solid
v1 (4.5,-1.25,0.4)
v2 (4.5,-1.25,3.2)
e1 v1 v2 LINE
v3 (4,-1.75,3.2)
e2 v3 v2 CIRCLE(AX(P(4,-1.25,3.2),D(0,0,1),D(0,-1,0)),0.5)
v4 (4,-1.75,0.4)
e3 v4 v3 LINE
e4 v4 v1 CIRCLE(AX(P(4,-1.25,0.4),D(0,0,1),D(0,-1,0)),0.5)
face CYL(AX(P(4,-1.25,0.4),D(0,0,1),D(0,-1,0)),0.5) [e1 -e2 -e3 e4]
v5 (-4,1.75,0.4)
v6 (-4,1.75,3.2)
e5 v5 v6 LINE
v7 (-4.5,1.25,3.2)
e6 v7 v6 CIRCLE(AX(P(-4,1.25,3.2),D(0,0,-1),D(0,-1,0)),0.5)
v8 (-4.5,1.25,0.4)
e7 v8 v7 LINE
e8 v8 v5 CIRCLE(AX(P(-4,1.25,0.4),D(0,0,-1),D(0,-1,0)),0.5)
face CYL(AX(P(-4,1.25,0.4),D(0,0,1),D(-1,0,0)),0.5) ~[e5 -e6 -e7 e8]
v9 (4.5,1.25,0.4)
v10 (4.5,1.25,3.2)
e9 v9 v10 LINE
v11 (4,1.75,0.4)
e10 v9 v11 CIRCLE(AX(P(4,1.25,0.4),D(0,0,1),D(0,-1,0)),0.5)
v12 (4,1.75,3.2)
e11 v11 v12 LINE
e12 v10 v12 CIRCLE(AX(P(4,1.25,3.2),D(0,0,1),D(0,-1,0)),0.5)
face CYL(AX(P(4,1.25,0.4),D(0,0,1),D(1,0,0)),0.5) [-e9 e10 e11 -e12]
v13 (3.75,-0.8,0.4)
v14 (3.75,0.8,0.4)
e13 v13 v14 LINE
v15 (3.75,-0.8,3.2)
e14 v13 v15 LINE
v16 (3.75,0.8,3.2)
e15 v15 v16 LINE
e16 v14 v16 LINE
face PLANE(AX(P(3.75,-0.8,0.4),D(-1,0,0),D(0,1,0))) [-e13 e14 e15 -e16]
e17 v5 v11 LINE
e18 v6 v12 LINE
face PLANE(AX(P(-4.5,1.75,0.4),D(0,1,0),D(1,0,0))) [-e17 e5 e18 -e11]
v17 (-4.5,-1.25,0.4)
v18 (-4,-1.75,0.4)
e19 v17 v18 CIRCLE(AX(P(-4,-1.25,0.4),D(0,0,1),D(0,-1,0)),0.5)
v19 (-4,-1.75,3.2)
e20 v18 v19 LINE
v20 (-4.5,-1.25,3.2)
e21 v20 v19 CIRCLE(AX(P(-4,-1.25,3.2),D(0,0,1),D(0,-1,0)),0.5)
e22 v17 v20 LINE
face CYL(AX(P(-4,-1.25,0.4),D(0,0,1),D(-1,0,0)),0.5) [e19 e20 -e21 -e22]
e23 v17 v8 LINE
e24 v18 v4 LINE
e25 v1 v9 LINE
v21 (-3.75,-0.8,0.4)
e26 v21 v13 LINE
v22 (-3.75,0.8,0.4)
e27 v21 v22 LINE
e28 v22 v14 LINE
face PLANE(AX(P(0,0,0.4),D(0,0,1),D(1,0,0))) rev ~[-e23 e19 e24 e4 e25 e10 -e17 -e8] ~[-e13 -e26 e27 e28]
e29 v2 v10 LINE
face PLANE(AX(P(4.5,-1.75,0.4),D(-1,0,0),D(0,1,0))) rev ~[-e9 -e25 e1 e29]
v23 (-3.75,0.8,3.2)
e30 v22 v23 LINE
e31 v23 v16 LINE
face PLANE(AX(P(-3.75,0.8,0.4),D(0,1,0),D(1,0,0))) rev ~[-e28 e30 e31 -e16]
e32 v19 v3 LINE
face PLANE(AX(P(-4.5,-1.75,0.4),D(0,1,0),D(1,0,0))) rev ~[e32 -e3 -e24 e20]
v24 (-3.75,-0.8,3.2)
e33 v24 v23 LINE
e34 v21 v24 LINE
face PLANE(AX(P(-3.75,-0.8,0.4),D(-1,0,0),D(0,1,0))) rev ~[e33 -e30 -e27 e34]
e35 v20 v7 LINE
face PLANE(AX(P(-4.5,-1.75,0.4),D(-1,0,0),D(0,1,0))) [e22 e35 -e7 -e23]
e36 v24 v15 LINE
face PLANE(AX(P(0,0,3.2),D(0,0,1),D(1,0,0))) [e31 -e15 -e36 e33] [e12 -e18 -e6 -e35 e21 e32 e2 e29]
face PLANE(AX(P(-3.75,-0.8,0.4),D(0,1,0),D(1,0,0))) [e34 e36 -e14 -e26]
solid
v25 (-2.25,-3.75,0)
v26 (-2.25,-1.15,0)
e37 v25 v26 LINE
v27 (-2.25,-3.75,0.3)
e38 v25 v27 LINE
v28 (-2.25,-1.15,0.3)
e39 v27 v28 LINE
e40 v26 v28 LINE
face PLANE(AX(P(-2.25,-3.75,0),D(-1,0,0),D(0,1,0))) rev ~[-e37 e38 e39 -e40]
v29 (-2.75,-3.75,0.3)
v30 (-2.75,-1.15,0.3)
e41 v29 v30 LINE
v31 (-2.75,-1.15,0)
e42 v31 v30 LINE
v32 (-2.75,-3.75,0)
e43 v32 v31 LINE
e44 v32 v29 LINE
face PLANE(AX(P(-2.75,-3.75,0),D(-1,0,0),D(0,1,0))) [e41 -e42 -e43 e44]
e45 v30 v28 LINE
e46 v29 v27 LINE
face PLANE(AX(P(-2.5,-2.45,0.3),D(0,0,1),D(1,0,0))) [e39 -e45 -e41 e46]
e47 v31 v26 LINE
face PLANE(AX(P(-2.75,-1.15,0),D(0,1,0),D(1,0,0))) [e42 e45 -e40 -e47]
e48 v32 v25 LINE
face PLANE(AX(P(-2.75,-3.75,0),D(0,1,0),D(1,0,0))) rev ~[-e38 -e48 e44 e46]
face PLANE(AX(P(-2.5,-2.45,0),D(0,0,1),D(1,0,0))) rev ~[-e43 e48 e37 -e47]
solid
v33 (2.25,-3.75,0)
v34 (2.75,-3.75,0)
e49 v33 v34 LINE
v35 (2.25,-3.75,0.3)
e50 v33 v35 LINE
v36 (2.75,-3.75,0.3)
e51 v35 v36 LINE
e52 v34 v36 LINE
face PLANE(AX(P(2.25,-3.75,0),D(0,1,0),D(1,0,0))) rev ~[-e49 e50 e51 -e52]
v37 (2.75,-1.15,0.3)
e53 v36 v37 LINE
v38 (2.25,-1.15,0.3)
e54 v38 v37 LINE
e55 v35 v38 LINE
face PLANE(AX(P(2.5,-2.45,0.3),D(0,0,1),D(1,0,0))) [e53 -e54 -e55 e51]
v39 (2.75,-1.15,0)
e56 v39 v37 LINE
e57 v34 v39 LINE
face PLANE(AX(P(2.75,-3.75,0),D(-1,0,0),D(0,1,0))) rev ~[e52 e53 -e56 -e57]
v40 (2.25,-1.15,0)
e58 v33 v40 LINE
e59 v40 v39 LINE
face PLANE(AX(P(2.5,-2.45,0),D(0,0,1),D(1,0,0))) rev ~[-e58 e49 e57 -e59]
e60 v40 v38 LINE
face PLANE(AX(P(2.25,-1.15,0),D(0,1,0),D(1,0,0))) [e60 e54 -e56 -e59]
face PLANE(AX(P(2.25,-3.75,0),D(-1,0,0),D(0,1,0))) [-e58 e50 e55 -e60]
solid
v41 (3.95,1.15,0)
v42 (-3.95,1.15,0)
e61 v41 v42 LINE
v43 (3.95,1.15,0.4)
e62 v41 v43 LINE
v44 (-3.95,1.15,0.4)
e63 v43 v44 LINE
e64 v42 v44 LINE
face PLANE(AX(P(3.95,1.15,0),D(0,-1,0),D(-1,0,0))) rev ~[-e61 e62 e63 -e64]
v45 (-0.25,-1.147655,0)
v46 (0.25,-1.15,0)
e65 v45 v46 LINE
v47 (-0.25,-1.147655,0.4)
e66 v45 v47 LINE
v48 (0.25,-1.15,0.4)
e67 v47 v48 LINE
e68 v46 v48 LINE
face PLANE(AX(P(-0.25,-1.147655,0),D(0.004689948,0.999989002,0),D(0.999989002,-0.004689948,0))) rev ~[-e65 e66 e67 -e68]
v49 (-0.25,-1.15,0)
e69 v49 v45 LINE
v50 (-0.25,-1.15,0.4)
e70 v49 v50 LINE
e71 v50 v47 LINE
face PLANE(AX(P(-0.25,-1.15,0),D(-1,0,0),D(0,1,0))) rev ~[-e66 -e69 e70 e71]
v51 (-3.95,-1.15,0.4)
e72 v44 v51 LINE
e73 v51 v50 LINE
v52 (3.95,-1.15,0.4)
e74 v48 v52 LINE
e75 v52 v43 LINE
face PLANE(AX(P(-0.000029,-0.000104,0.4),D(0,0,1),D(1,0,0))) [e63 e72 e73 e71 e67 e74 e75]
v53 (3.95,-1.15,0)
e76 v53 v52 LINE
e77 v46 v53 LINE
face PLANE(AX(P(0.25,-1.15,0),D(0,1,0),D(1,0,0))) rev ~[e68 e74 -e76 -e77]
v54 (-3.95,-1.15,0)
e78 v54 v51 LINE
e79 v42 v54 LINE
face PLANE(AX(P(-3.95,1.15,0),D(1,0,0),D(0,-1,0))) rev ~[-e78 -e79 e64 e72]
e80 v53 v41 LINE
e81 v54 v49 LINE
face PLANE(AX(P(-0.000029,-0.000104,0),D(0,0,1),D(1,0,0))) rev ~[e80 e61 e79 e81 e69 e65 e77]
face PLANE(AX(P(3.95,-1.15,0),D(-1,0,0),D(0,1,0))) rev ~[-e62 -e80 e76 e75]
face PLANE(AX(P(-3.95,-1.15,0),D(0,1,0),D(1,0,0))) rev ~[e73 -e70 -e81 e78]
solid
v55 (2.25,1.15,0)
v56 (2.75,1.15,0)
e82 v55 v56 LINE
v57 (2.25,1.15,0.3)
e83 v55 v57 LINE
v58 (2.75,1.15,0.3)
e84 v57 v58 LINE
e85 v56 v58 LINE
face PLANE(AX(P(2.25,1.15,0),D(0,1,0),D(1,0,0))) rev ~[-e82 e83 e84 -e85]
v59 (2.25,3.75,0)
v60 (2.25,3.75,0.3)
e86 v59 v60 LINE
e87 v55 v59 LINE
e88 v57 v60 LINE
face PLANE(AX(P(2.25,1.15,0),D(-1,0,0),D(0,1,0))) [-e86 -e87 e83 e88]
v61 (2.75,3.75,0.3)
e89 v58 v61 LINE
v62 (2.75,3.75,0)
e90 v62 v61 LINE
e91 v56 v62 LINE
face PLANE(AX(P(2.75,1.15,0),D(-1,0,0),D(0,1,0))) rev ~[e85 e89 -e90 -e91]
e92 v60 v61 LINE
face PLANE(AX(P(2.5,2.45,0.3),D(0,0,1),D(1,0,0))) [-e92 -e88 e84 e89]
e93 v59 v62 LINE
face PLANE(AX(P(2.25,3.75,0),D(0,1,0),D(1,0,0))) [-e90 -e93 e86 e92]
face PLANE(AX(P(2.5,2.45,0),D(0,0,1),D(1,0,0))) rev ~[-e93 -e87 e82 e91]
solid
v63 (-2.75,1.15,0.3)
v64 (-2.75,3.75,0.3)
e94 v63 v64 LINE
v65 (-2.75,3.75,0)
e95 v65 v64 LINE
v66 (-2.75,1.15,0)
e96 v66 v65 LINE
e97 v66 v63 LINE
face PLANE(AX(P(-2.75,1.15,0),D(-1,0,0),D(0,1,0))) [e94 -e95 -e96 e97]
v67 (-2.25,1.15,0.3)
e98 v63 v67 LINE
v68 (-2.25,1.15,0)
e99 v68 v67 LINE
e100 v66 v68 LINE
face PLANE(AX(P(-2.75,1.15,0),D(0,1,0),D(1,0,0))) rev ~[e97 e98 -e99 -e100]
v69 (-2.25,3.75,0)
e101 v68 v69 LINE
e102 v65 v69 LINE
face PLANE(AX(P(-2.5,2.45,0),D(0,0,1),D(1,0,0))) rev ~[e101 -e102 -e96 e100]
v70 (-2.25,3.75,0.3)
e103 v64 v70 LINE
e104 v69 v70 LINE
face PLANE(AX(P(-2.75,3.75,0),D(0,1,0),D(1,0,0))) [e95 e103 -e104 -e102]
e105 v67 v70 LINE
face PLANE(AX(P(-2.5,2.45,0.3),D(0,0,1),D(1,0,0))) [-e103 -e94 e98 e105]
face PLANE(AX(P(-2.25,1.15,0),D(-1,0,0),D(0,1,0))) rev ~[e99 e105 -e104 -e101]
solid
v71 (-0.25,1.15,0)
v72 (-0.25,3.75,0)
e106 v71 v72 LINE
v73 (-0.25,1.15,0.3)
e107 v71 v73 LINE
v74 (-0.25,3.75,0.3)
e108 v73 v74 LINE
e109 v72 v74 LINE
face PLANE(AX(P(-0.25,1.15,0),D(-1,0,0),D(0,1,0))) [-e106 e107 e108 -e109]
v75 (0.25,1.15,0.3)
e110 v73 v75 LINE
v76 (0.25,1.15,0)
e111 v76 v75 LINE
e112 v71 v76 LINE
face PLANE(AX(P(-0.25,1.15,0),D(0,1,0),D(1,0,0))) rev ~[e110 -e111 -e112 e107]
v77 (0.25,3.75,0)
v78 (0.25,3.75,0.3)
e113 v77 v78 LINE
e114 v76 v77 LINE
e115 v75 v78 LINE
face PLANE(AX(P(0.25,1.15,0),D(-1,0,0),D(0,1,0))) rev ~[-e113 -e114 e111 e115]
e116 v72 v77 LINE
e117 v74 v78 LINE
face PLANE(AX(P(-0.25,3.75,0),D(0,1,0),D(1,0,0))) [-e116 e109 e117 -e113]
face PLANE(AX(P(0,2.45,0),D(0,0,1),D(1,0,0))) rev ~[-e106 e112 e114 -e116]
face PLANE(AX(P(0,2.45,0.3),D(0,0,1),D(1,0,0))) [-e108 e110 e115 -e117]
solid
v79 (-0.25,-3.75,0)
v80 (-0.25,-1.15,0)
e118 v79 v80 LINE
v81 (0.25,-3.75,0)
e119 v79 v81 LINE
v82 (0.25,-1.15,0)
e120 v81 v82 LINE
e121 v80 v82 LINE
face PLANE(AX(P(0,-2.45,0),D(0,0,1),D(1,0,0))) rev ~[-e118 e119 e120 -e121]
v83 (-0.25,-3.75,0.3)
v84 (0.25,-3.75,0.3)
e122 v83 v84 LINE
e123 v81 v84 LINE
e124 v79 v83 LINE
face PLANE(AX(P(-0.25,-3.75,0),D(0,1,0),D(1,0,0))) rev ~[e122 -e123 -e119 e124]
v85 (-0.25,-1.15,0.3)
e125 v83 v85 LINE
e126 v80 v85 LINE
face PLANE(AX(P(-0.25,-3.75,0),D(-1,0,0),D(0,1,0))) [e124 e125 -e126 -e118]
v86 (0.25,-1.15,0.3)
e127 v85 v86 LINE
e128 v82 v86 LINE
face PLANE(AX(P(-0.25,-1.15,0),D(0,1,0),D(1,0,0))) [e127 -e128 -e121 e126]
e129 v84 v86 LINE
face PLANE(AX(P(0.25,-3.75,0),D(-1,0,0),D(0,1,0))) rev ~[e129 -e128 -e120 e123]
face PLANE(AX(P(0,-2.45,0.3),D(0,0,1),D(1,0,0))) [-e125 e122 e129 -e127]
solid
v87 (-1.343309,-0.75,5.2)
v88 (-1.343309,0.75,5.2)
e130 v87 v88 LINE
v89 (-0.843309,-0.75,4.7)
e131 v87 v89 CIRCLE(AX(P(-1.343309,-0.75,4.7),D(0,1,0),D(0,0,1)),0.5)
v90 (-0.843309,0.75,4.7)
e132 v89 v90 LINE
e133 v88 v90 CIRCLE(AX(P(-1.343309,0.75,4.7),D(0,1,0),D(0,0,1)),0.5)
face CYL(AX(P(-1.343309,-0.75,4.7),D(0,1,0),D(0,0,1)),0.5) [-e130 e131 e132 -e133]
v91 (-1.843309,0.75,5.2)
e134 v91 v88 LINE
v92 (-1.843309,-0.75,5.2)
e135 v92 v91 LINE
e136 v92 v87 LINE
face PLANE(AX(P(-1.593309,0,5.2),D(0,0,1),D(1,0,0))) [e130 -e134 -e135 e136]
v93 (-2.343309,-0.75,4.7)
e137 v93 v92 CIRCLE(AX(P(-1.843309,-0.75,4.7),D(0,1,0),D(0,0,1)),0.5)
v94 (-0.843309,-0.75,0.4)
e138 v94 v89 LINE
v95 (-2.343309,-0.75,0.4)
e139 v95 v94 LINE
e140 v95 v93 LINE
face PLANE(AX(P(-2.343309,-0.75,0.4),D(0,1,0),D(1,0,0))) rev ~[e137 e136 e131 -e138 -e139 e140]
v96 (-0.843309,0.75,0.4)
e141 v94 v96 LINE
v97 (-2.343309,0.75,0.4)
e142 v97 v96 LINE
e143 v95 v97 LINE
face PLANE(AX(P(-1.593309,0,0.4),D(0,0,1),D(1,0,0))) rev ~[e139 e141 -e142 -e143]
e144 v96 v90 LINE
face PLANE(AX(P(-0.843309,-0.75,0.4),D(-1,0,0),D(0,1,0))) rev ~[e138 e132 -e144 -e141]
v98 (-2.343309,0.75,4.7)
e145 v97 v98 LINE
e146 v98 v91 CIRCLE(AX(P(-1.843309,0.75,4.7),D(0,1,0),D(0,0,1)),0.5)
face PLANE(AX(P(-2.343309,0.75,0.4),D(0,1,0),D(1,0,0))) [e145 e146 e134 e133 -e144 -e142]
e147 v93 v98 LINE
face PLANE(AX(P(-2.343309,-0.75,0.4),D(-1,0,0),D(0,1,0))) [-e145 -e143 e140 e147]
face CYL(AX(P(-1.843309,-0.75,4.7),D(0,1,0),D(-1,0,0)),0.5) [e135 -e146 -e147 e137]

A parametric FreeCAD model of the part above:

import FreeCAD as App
import Part
import Sketcher

V = App.Vector


def edges_at(feature, points):
    """Names of the edges that pass closest to the given points."""
    edges = feature.Shape.Edges
    near = lambda p: min(range(len(edges)), key=lambda i: edges[i].distToShape(Part.Vertex(*p))[0])
    return sorted({f"Edge{near(p) + 1}" for p in points})


def add_polygon(sketch, points):
    """Adds a closed chain of lines whose ends are joined by coincident constraints."""
    first, n = sketch.GeometryCount, len(points)
    for a, b in zip(points, points[1:] + points[:1]):
        sketch.addGeometry(Part.LineSegment(App.Vector(*a, 0), App.Vector(*b, 0)), False)
    for i in range(n):
        sketch.addConstraint(Sketcher.Constraint("Coincident", first + i, 2, first + (i + 1) % n, 1))

doc = App.newDocument("Part")
body = doc.addObject("PartDesign::Body", "Body")

sketch1 = doc.addObject("Sketcher::SketchObject", "Sketch")
body.addObject(sketch1)
sketch1.AttachmentSupport = (doc.XY_Plane, [""])
sketch1.MapMode = "FlatFace"
sketch1.AttachmentOffset = App.Placement(V(0, 0, 0.4), App.Rotation())
add_polygon(sketch1, [(-4.5, 1.8), (-4.5, -1.8), (4.5, -1.8), (4.5, 1.8)])
add_polygon(sketch1, [(3.8, -0.8), (-3.8, -0.8), (-3.8, 0.8), (3.8, 0.8)])
sketch1.addConstraint([
    Sketcher.Constraint("Vertical", 0),
    Sketcher.Constraint("Horizontal", 1),
    Sketcher.Constraint("Vertical", 2),
    Sketcher.Constraint("Horizontal", 3),
    Sketcher.Constraint("Horizontal", 4),
    Sketcher.Constraint("Vertical", 5),
    Sketcher.Constraint("Horizontal", 6),
    Sketcher.Constraint("Vertical", 7),
    Sketcher.Constraint("Symmetric", 0, 2, 2, 2, -1, 1),
    Sketcher.Constraint("Symmetric", 4, 2, 6, 2, -1, 1),
    Sketcher.Constraint("DistanceX", 1, 1, 1, 2, 9.0),
    Sketcher.Constraint("DistanceX", 4, 2, 4, 1, 7.5),
    Sketcher.Constraint("DistanceY", 0, 2, 0, 1, 3.5),
    Sketcher.Constraint("DistanceY", 5, 1, 5, 2, 1.6),
])
pad1 = doc.addObject("PartDesign::Pad", "Pad")
body.addObject(pad1)
pad1.Profile = sketch1
pad1.Length = 2.8
doc.recompute()

fillet = doc.addObject("PartDesign::Fillet", "Fillet")
body.addObject(fillet)
fillet.Base = (pad1, edges_at(pad1, [(-4.5, -1.75, 1.8)]))
fillet.Radius = 0.5
doc.recompute()

fillet2 = doc.addObject("PartDesign::Fillet", "Fillet001")
body.addObject(fillet2)
fillet2.Base = (fillet, edges_at(fillet, [(-4.5, 1.75, 1.8)]))
fillet2.Radius = 0.5
doc.recompute()

fillet3 = doc.addObject("PartDesign::Fillet", "Fillet002")
body.addObject(fillet3)
fillet3.Base = (fillet2, edges_at(fillet2, [(4.5, -1.75, 1.8)]))
fillet3.Radius = 0.5
doc.recompute()

fillet4 = doc.addObject("PartDesign::Fillet", "Fillet003")
body.addObject(fillet4)
fillet4.Base = (fillet3, edges_at(fillet3, [(4.5, 1.75, 1.8)]))
fillet4.Radius = 0.5
body2 = doc.addObject("PartDesign::Body", "Body001")

sketch2 = doc.addObject("Sketcher::SketchObject", "Sketch001")
body2.addObject(sketch2)
sketch2.AttachmentSupport = (doc.getObject("XY_Plane001"), [""])
sketch2.MapMode = "FlatFace"
add_polygon(sketch2, [(3.95, -1.15), (3.95, 1.15), (-3.95, 1.15), (-3.95, -1.15), (-0.25, -1.15), (-0.25, -1.1477), (0.25, -1.15)])
sketch2.addConstraint([
    Sketcher.Constraint("Vertical", 0),
    Sketcher.Constraint("Horizontal", 1),
    Sketcher.Constraint("Vertical", 2),
    Sketcher.Constraint("Horizontal", 3),
    Sketcher.Constraint("Vertical", 4),
    Sketcher.Constraint("Horizontal", 6),
    Sketcher.Constraint("Symmetric", 0, 2, 2, 2, -1, 1),
    Sketcher.Constraint("Symmetric", 3, 2, 5, 2, -2),
    Sketcher.Constraint("DistanceX", 1, 2, 1, 1, 7.9),
    Sketcher.Constraint("DistanceX", 3, 1, 3, 2, 3.7),
    Sketcher.Constraint("DistanceY", 0, 1, 0, 2, 2.3),
    Sketcher.Constraint("DistanceY", 4, 1, 4, 2, 0.002345),
])
pad2 = doc.addObject("PartDesign::Pad", "Pad001")
body2.addObject(pad2)
pad2.Profile = sketch2
pad2.Length = 0.4
body3 = doc.addObject("PartDesign::Body", "Body002")

sketch3 = doc.addObject("Sketcher::SketchObject", "Sketch002")
body3.addObject(sketch3)
sketch3.AttachmentSupport = (doc.getObject("XY_Plane002"), [""])
sketch3.MapMode = "FlatFace"
sketch3.AttachmentOffset = App.Placement(V(0, 0, 0.4), App.Rotation())
add_polygon(sketch3, [(-2.3, 0.8), (-2.3, -0.8), (-0.8, -0.8), (-0.8, 0.8)])
sketch3.addConstraint([
    Sketcher.Constraint("Vertical", 0),
    Sketcher.Constraint("Horizontal", 1),
    Sketcher.Constraint("Vertical", 2),
    Sketcher.Constraint("Horizontal", 3),
    Sketcher.Constraint("Equal", 3, 0),
    Sketcher.Constraint("DistanceX", 1, 1, 1, 2, 1.5),
    Sketcher.Constraint("DistanceY", 0, 2, -1, 1, 0.75),
    Sketcher.Constraint("DistanceX", 0, 2, -1, 1, 2.343309),
])
pad3 = doc.addObject("PartDesign::Pad", "Pad002")
body3.addObject(pad3)
pad3.Profile = sketch3
pad3.Length = 4.8
doc.recompute()

fillet5 = doc.addObject("PartDesign::Fillet", "Fillet004")
body3.addObject(fillet5)
fillet5.Base = (pad3, edges_at(pad3, [(-2.343, 0, 5.2)]))
fillet5.Radius = 0.5
doc.recompute()

fillet6 = doc.addObject("PartDesign::Fillet", "Fillet005")
body3.addObject(fillet6)
fillet6.Base = (fillet5, edges_at(fillet5, [(-0.843, 0, 5.2)]))
fillet6.Radius = 0.5
body4 = doc.addObject("PartDesign::Body", "Body003")
body4.AllowCompound = True

sketch4 = doc.addObject("Sketcher::SketchObject", "Sketch003")
body4.addObject(sketch4)
sketch4.AttachmentSupport = (doc.getObject("XY_Plane003"), [""])
sketch4.MapMode = "FlatFace"
add_polygon(sketch4, [(-2.8, 3.8), (-2.8, 1.1), (-2.2, 1.1), (-2.2, 3.8)])
add_polygon(sketch4, [(-0.2, 3.8), (-0.2, 1.1), (0.2, 1.1), (0.2, 3.8)])
add_polygon(sketch4, [(2.2, 3.8), (2.2, 1.1), (2.8, 1.1), (2.8, 3.8)])
add_polygon(sketch4, [(2.2, -1.1), (2.2, -3.8), (2.8, -3.8), (2.8, -1.1)])
add_polygon(sketch4, [(-0.2, -1.1), (-0.2, -3.8), (0.2, -3.8), (0.2, -1.1)])
add_polygon(sketch4, [(-2.8, -1.1), (-2.8, -3.8), (-2.2, -3.8), (-2.2, -1.1)])
sketch4.addConstraint([
    Sketcher.Constraint("Vertical", 0),
    Sketcher.Constraint("Horizontal", 1),
    Sketcher.Constraint("Vertical", 2),
    Sketcher.Constraint("Horizontal", 3),
    Sketcher.Constraint("Vertical", 4),
    Sketcher.Constraint("Horizontal", 5),
    Sketcher.Constraint("Vertical", 6),
    Sketcher.Constraint("Horizontal", 7),
    Sketcher.Constraint("Vertical", 8),
    Sketcher.Constraint("Horizontal", 9),
    Sketcher.Constraint("Vertical", 10),
    Sketcher.Constraint("Horizontal", 11),
    Sketcher.Constraint("Vertical", 12),
    Sketcher.Constraint("Horizontal", 13),
    Sketcher.Constraint("Vertical", 14),
    Sketcher.Constraint("Horizontal", 15),
    Sketcher.Constraint("Vertical", 16),
    Sketcher.Constraint("Horizontal", 17),
    Sketcher.Constraint("Vertical", 18),
    Sketcher.Constraint("Horizontal", 19),
    Sketcher.Constraint("Vertical", 20),
    Sketcher.Constraint("Horizontal", 21),
    Sketcher.Constraint("Vertical", 22),
    Sketcher.Constraint("Horizontal", 23),
    Sketcher.Constraint("Symmetric", 2, 2, 12, 2, -1, 1),
    Sketcher.Constraint("Symmetric", 0, 2, 14, 2, -1, 1),
    Sketcher.Constraint("Symmetric", 6, 2, 16, 2, -1, 1),
    Sketcher.Constraint("Symmetric", 4, 2, 18, 2, -1, 1),
    Sketcher.Constraint("Symmetric", 10, 2, 20, 2, -1, 1),
    Sketcher.Constraint("Symmetric", 8, 2, 22, 2, -1, 1),
    Sketcher.Constraint("Symmetric", 1, 2, 8, 2, -2),
    Sketcher.Constraint("Symmetric", 3, 2, 10, 2, -2),
    Sketcher.Constraint("Horizontal", 1, 2, 4, 2),
    Sketcher.Constraint("Horizontal", 3, 2, 6, 2),
    Sketcher.Constraint("Vertical", 7, 2, 16, 2),
    Sketcher.Constraint("Equal", 3, 5),
    Sketcher.Constraint("DistanceX", 1, 1, 1, 2, 0.5),
    Sketcher.Constraint("DistanceY", 0, 2, 0, 1, 2.6),
    Sketcher.Constraint("DistanceX", 1, 2, 4, 2, 2.0),
    Sketcher.Constraint("DistanceY", 12, 2, 8, 2, 4.9),
])
pad4 = doc.addObject("PartDesign::Pad", "Pad003")
body4.addObject(pad4)
pad4.Profile = sketch4
pad4.Length = 0.3

doc.recompute()
